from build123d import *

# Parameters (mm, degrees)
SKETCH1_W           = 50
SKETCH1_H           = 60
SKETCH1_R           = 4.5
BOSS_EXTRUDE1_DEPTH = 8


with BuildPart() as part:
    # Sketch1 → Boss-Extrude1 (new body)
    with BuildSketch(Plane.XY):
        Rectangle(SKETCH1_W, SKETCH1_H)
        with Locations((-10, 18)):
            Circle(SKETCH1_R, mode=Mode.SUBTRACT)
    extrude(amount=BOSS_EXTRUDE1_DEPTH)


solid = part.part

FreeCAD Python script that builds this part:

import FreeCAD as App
import Part
import Sketcher

V = App.Vector
Q = App.Units.Quantity


def add_polygon(sketch, points):
    """Adds a closed chain of lines whose ends are joined by coincident constraints."""
    first, n = sketch.GeometryCount, len(points)
    for a, b in zip(points, points[1:] + points[:1]):
        sketch.addGeometry(Part.LineSegment(App.Vector(*a, 0), App.Vector(*b, 0)), False)
    for i in range(n):
        sketch.addConstraint(Sketcher.Constraint("Coincident", first + i, 2, first + (i + 1) % n, 1))

doc = App.newDocument("Part")
body = doc.addObject("PartDesign::Body", "Body")

# Sketch on XY plane
sketch1 = body.newObject("Sketcher::SketchObject", "Sketch")
sketch1.AttachmentSupport = (doc.getObject("XY_Plane"), [""])
sketch1.MapMode = "FlatFace"
add_polygon(sketch1, [(-25, 30), (-25, -30), (25, -30), (25, 30)])  # lines 0-3
sketch1.addGeometry(Part.Circle(V(-10, 18, 0), V(0, 0, 1), 4.5), False)  # 4
sketch1.addConstraint(Sketcher.Constraint("Vertical", 0))
sketch1.addConstraint(Sketcher.Constraint("Horizontal", 1))
sketch1.addConstraint(Sketcher.Constraint("Vertical", 2))
sketch1.addConstraint(Sketcher.Constraint("Horizontal", 3))
sketch1.addConstraint(Sketcher.Constraint("Symmetric", 0, 2, 2, 2, -1, 1))
sketch1.addConstraint(Sketcher.Constraint("Diameter", 4, Q("9 mm")))
sketch1.addConstraint(Sketcher.Constraint("DistanceX", 1, 1, 1, 2, Q("50 mm")))
sketch1.addConstraint(Sketcher.Constraint("DistanceY", 0, 2, 0, 1, Q("60 mm")))
sketch1.addConstraint(Sketcher.Constraint("DistanceX", 4, 3, -1, 1, Q("10 mm")))
sketch1.addConstraint(Sketcher.Constraint("DistanceY", -1, 1, 4, 3, Q("18 mm")))
pad1 = body.newObject("PartDesign::Pad", "Pad")
pad1.Profile = sketch1
pad1.Length = 8

doc.recompute()
